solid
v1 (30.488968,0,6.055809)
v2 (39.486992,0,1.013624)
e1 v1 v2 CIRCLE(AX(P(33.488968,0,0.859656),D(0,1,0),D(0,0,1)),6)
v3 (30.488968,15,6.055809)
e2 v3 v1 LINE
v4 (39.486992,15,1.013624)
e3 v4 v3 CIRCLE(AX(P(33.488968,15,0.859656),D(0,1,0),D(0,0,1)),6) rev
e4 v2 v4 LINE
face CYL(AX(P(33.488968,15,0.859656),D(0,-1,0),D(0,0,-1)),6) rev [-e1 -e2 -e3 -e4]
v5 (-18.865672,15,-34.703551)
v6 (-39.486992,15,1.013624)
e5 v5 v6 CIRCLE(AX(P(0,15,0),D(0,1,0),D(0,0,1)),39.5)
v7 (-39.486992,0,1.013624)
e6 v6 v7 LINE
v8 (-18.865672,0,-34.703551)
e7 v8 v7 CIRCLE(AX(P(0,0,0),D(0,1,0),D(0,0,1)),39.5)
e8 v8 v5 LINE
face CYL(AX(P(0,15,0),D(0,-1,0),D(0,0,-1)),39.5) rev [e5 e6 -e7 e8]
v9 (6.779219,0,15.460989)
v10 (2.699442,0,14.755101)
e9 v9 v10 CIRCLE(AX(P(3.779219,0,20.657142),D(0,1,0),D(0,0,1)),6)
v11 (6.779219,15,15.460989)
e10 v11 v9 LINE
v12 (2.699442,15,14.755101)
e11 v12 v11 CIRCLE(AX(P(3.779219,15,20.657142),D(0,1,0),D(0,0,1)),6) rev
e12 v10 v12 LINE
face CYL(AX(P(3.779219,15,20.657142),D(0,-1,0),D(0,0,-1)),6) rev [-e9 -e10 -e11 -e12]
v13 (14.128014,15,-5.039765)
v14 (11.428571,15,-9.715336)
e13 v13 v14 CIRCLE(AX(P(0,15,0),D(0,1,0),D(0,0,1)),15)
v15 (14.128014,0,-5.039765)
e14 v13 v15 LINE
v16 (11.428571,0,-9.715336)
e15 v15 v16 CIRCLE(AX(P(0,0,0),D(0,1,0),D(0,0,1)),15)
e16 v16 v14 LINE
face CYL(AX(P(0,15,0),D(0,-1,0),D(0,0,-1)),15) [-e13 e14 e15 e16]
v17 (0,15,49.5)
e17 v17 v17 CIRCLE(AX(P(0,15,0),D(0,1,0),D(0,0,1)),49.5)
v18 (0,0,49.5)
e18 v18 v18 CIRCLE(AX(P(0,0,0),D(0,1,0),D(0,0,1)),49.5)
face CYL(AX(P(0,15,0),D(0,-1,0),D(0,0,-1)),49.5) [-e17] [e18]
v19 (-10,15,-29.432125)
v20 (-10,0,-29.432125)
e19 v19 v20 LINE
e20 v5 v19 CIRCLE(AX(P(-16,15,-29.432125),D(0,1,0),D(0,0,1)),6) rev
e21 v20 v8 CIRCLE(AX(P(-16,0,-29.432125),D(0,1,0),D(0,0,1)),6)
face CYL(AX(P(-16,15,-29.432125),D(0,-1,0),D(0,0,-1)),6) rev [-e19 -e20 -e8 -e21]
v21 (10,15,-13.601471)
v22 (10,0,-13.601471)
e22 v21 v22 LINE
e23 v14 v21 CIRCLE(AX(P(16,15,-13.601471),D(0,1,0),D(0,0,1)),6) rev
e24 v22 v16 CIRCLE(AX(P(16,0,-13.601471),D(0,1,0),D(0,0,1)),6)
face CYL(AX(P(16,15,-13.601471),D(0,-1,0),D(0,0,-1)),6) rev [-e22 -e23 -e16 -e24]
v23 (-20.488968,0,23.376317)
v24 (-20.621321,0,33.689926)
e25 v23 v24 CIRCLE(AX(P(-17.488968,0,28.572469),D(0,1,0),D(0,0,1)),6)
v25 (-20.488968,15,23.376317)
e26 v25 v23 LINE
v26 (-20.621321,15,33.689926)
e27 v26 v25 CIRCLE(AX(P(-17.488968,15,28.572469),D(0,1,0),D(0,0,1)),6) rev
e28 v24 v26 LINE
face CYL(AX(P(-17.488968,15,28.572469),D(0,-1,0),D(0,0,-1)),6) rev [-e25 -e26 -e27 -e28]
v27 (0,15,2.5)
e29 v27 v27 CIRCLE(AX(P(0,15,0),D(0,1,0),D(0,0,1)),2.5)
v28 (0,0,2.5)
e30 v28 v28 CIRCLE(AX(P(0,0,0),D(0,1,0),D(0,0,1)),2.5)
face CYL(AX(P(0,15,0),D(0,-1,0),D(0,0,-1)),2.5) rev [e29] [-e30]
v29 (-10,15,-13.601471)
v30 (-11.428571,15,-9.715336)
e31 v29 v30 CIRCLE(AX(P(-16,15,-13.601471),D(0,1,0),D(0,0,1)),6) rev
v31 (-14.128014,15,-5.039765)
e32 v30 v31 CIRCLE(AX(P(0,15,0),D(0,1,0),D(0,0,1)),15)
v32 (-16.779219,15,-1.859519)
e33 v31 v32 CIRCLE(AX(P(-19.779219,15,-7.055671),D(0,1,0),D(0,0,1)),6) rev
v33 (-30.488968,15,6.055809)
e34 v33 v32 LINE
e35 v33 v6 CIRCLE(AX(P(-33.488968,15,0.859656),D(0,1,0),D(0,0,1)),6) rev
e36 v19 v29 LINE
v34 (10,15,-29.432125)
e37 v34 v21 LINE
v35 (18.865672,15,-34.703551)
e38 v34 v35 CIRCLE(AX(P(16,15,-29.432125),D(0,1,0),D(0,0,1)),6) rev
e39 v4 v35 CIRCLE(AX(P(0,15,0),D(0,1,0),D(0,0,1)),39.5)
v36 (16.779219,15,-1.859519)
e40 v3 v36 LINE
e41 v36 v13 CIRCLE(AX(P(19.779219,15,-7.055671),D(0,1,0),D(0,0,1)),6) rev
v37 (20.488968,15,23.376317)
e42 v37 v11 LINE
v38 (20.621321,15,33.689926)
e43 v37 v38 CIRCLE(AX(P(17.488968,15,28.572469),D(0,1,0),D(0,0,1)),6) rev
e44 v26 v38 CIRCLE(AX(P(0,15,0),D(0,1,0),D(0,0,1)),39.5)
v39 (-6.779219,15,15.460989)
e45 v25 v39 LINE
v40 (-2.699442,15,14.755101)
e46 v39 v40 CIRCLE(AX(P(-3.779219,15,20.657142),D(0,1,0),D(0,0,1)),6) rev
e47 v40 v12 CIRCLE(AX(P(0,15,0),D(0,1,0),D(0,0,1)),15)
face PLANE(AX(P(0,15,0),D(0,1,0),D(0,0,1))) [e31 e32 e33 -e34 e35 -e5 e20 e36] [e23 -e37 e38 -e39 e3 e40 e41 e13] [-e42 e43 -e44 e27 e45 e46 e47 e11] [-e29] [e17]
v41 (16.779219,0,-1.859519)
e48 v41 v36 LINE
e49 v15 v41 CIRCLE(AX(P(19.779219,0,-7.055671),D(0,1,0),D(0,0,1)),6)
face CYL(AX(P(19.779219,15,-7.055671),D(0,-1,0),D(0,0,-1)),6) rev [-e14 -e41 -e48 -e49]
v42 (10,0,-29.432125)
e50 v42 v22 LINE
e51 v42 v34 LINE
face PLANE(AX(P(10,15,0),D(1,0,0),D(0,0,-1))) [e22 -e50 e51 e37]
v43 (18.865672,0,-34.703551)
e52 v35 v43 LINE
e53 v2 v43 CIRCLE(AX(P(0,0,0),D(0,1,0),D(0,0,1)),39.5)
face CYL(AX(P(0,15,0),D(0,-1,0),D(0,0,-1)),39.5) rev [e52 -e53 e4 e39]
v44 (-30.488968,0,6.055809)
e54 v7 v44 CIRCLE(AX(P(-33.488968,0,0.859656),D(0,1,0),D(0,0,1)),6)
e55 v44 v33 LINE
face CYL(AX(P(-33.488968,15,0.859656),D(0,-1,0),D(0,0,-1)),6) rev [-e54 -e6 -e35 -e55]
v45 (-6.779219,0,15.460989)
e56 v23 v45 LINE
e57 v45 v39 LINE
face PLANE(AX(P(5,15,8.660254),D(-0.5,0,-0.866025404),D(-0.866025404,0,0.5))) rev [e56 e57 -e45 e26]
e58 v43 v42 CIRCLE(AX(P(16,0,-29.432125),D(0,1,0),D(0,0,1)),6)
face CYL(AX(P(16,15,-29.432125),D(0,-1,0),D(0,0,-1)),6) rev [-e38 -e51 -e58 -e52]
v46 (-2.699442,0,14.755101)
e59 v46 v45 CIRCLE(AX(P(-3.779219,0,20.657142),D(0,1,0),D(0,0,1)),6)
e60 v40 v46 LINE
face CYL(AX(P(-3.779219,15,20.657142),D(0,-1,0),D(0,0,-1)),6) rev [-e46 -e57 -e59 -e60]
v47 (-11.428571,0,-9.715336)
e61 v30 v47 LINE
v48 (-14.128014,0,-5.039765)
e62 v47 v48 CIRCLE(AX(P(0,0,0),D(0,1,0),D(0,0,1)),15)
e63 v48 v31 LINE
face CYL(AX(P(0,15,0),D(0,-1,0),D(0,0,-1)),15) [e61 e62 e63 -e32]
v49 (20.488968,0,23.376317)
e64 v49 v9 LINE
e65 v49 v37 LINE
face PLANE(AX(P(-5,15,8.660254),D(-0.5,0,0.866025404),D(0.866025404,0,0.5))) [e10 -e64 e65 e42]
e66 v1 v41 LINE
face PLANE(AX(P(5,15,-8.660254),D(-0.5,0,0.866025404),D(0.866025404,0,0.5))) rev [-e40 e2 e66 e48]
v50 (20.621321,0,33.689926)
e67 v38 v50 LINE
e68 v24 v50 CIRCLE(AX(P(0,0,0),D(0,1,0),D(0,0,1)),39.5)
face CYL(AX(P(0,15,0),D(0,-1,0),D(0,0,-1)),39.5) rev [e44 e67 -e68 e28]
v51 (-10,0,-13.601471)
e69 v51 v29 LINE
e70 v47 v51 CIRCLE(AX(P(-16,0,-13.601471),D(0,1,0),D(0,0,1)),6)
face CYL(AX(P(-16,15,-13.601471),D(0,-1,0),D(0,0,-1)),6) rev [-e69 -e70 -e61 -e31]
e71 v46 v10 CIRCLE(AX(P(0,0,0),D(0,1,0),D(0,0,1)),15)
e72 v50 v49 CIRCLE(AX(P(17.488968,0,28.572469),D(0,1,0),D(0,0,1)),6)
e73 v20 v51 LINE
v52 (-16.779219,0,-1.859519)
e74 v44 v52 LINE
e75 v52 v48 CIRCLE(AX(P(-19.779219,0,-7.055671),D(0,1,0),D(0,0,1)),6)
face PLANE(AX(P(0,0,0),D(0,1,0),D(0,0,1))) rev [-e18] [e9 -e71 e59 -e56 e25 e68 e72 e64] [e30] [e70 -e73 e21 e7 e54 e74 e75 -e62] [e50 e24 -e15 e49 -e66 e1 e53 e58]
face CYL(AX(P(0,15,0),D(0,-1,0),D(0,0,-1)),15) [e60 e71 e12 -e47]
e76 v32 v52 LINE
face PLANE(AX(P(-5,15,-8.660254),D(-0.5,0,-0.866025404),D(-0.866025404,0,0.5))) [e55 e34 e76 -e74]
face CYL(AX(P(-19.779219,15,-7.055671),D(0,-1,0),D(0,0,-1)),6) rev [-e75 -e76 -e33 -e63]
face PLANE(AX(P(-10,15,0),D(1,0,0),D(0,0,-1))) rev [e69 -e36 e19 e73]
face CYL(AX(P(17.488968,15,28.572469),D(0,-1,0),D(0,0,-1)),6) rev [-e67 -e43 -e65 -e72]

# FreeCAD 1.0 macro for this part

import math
import FreeCAD as App
import Part
import Sketcher
Q = App.Units.Quantity


def edges_at(feature, points):
    """Names of the edges that pass closest to the given points."""
    edges = feature.Shape.Edges
    near = lambda p: min(range(len(edges)), key=lambda i: edges[i].distToShape(Part.Vertex(*p))[0])
    return sorted({f"Edge{near(p) + 1}" for p in points})

doc = App.newDocument("Part")
body = doc.addObject("PartDesign::Body", "Body")

# Sketch on XZ plane
sketch1 = body.newObject("Sketcher::SketchObject", "Sketch")
sketch1.AttachmentSupport = (doc.getObject("XZ_Plane"), [""])
sketch1.MapMode = "FlatFace"
sketch1.addGeometry([
    Part.Circle(App.Vector(0, 0, 0), App.Vector(0, 0, 1), 49.5),  # 0
    Part.ArcOfCircle(Part.Circle(App.Vector(0, 0, 0), App.Vector(0, 0, 1), 39.5), math.radians(-75), math.radians(15)),  # 1
    Part.LineSegment(App.Vector(38.1, 10.4, 0), App.Vector(14.7, -3.1, 0)),  # 2
    Part.ArcOfCircle(Part.Circle(App.Vector(0, 0, 0), App.Vector(0, 0, 1), 15), math.radians(-48), math.radians(-12)),  # 3
    Part.LineSegment(App.Vector(10, -11.2, 0), App.Vector(10, -38.2, 0)),  # 4
    Part.ArcOfCircle(Part.Circle(App.Vector(0, 0, 0), App.Vector(0, 0, 1), 39.5), math.radians(165), math.radians(255)),  # 5
    Part.LineSegment(App.Vector(-10, -38.2, 0), App.Vector(-10, -11.2, 0)),  # 6
    Part.ArcOfCircle(Part.Circle(App.Vector(0, 0, 0), App.Vector(0, 0, 1), 15), math.radians(-168), math.radians(-132)),  # 7
    Part.LineSegment(App.Vector(-14.7, -3.1, 0), App.Vector(-38.1, 10.4, 0)),  # 8
    Part.ArcOfCircle(Part.Circle(App.Vector(0, 0, 0), App.Vector(0, 0, 1), 39.5), math.radians(45), math.radians(135)),  # 9
    Part.LineSegment(App.Vector(-28.1, 27.8, 0), App.Vector(-4.7, 14.3, 0)),  # 10
    Part.ArcOfCircle(Part.Circle(App.Vector(0, 0, 0), App.Vector(0, 0, 1), 15), math.radians(72), math.radians(108)),  # 11
    Part.LineSegment(App.Vector(4.7, 14.3, 0), App.Vector(28.1, 27.8, 0)),  # 12
    Part.Circle(App.Vector(0, 0, 0), App.Vector(0, 0, 1), 2.5),  # 13
], False)
sketch1.addConstraint([
    Sketcher.Constraint("Coincident", 1, 2, 2, 1),
    Sketcher.Constraint("Coincident", 2, 2, 3, 2),
    Sketcher.Constraint("Coincident", 3, 1, 4, 1),
    Sketcher.Constraint("Coincident", 4, 2, 1, 1),
    Sketcher.Constraint("Coincident", 5, 2, 6, 1),
    Sketcher.Constraint("Coincident", 6, 2, 7, 2),
    Sketcher.Constraint("Coincident", 7, 1, 8, 1),
    Sketcher.Constraint("Coincident", 8, 2, 5, 1),
    Sketcher.Constraint("Coincident", 9, 2, 10, 1),
    Sketcher.Constraint("Coincident", 10, 2, 11, 2),
    Sketcher.Constraint("Coincident", 11, 1, 12, 1),
    Sketcher.Constraint("Coincident", 12, 2, 9, 1),
    Sketcher.Constraint("Vertical", 4),
    Sketcher.Constraint("Vertical", 6),
    Sketcher.Constraint("Coincident", 0, 3, -1, 1),
    Sketcher.Constraint("Coincident", 1, 3, -1, 1),
    Sketcher.Constraint("Coincident", 3, 3, -1, 1),
    Sketcher.Constraint("Coincident", 5, 3, -1, 1),
    Sketcher.Constraint("Coincident", 7, 3, -1, 1),
    Sketcher.Constraint("Coincident", 9, 3, -1, 1),
    Sketcher.Constraint("Coincident", 11, 3, -1, 1),
    Sketcher.Constraint("Coincident", 13, 3, -1, 1),
    Sketcher.Constraint("Equal", 1, 5),
    Sketcher.Constraint("Equal", 3, 7),
    Sketcher.Constraint("Equal", 5, 9),
    Sketcher.Constraint("Equal", 7, 11),
    Sketcher.Constraint("Parallel", 8, 10),
    Sketcher.Constraint("Parallel", 2, 12),
    Sketcher.Constraint("Horizontal", 4, 2, 5, 2),
    Sketcher.Constraint("Horizontal", 2, 2, 7, 1),
    Sketcher.Constraint("Horizontal", 1, 2, 8, 2),
    Sketcher.Constraint("Horizontal", 10, 2, 11, 1),
    Sketcher.Constraint("Equal", 8, 10),
    Sketcher.Constraint("Diameter", 0, Q("99 mm")),
    Sketcher.Constraint("Diameter", 13, Q("5 mm")),
    Sketcher.Constraint("Radius", 3, Q("15 mm")),
    Sketcher.Constraint("Radius", 1, Q("39.5 mm")),
    Sketcher.Constraint("Angle", 2, Q("-150 deg")),
    Sketcher.Constraint("DistanceX", -1, 1, 3, 1, Q("10 mm")),
    Sketcher.Constraint("DistanceX", 8, 2, 9, 2, Q("10 mm")),
])
pad1 = body.newObject("PartDesign::Pad", "Pad")
pad1.Profile = sketch1
pad1.Length = 15
pad1.Reversed = True
doc.recompute()

fillet = body.newObject("PartDesign::Fillet", "Fillet")
fillet.Base = (pad1, edges_at(pad1, [
    (14.682, 7.5, -3.07),
    (38.094, 7.5, 10.446),
    (10, 7.5, -38.213),
    (10, 7.5, -11.18),
    (-10, 7.5, -38.213),
    (-38.094, 7.5, 10.446),
    (-14.682, 7.5, -3.07),
    (-10, 7.5, -11.18),
    (-28.094, 7.5, 27.767),
    (28.094, 7.5, 27.767),
    (4.682, 7.5, 14.25),
    (-4.682, 7.5, 14.25),
]))
fillet.Radius = 6

doc.recompute()
